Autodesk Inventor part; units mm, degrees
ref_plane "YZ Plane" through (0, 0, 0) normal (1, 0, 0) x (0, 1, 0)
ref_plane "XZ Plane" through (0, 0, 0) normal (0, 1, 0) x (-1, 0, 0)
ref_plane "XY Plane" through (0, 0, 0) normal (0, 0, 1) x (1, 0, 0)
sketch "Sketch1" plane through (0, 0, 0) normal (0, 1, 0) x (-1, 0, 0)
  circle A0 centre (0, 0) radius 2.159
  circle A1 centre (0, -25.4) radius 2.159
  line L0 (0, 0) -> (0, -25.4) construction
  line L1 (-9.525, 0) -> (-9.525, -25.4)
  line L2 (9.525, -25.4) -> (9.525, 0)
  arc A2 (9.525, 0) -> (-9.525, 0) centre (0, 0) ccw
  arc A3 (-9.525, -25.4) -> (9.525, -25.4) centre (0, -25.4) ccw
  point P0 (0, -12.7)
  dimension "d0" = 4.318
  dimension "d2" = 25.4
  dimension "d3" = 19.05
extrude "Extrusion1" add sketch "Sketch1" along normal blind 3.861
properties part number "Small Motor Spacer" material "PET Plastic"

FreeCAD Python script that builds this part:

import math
import FreeCAD as App
import Part
import Sketcher
from FreeCAD import Vector
Q = App.Units.Quantity

doc = App.newDocument("Part")
body = doc.addObject("PartDesign::Body", "Body")

# Sketch on XZ plane
sketch1 = body.newObject("Sketcher::SketchObject", "Sketch")
sketch1.AttachmentSupport = (doc.getObject("XZ_Plane"), [""])
sketch1.MapMode = "FlatFace"
sketch1.addGeometry([
    Part.ArcOfCircle(Part.Circle(Vector(0, 0, 0), Vector(0, 0, 1), 9.5), math.radians(0), math.radians(180)),  # 0
    Part.LineSegment(Vector(9.5, 0, 0), Vector(9.5, -25.4, 0)),  # 1
    Part.ArcOfCircle(Part.Circle(Vector(0, -25.4, 0), Vector(0, 0, 1), 9.5), math.radians(180), math.radians(360)),  # 2
    Part.LineSegment(Vector(-9.5, -25.4, 0), Vector(-9.5, 0, 0)),  # 3
    Part.Circle(Vector(0, -25.4, 0), Vector(0, 0, 1), 2.2),  # 4
    Part.Circle(Vector(0, 0, 0), Vector(0, 0, 1), 2.2),  # 5
], False)
sketch1.addConstraint([
    Sketcher.Constraint("Tangent", 0, 1, 1, 1),
    Sketcher.Constraint("Tangent", 1, 2, 2, 2),
    Sketcher.Constraint("Tangent", 2, 1, 3, 1),
    Sketcher.Constraint("Tangent", 3, 2, 0, 2),
    Sketcher.Constraint("Vertical", 1),
    Sketcher.Constraint("Vertical", 3),
    Sketcher.Constraint("Coincident", 0, 3, -1, 1),
    Sketcher.Constraint("Coincident", 5, 3, -1, 1),
    Sketcher.Constraint("Coincident", 4, 3, 2, 3),
    Sketcher.Constraint("Equal", 4, 5),
    Sketcher.Constraint("Diameter", 4, Q("0.17 in")),
    Sketcher.Constraint("DistanceY", 1, 2, 1, 1, Q("1 in")),
    Sketcher.Constraint("Radius", 0, Q("0.375 in")),
])
pad1 = body.newObject("PartDesign::Pad", "Pad")
pad1.Profile = sketch1
pad1.Length = Q("0.1520079 in")
pad1.Reversed = True

doc.recompute()
